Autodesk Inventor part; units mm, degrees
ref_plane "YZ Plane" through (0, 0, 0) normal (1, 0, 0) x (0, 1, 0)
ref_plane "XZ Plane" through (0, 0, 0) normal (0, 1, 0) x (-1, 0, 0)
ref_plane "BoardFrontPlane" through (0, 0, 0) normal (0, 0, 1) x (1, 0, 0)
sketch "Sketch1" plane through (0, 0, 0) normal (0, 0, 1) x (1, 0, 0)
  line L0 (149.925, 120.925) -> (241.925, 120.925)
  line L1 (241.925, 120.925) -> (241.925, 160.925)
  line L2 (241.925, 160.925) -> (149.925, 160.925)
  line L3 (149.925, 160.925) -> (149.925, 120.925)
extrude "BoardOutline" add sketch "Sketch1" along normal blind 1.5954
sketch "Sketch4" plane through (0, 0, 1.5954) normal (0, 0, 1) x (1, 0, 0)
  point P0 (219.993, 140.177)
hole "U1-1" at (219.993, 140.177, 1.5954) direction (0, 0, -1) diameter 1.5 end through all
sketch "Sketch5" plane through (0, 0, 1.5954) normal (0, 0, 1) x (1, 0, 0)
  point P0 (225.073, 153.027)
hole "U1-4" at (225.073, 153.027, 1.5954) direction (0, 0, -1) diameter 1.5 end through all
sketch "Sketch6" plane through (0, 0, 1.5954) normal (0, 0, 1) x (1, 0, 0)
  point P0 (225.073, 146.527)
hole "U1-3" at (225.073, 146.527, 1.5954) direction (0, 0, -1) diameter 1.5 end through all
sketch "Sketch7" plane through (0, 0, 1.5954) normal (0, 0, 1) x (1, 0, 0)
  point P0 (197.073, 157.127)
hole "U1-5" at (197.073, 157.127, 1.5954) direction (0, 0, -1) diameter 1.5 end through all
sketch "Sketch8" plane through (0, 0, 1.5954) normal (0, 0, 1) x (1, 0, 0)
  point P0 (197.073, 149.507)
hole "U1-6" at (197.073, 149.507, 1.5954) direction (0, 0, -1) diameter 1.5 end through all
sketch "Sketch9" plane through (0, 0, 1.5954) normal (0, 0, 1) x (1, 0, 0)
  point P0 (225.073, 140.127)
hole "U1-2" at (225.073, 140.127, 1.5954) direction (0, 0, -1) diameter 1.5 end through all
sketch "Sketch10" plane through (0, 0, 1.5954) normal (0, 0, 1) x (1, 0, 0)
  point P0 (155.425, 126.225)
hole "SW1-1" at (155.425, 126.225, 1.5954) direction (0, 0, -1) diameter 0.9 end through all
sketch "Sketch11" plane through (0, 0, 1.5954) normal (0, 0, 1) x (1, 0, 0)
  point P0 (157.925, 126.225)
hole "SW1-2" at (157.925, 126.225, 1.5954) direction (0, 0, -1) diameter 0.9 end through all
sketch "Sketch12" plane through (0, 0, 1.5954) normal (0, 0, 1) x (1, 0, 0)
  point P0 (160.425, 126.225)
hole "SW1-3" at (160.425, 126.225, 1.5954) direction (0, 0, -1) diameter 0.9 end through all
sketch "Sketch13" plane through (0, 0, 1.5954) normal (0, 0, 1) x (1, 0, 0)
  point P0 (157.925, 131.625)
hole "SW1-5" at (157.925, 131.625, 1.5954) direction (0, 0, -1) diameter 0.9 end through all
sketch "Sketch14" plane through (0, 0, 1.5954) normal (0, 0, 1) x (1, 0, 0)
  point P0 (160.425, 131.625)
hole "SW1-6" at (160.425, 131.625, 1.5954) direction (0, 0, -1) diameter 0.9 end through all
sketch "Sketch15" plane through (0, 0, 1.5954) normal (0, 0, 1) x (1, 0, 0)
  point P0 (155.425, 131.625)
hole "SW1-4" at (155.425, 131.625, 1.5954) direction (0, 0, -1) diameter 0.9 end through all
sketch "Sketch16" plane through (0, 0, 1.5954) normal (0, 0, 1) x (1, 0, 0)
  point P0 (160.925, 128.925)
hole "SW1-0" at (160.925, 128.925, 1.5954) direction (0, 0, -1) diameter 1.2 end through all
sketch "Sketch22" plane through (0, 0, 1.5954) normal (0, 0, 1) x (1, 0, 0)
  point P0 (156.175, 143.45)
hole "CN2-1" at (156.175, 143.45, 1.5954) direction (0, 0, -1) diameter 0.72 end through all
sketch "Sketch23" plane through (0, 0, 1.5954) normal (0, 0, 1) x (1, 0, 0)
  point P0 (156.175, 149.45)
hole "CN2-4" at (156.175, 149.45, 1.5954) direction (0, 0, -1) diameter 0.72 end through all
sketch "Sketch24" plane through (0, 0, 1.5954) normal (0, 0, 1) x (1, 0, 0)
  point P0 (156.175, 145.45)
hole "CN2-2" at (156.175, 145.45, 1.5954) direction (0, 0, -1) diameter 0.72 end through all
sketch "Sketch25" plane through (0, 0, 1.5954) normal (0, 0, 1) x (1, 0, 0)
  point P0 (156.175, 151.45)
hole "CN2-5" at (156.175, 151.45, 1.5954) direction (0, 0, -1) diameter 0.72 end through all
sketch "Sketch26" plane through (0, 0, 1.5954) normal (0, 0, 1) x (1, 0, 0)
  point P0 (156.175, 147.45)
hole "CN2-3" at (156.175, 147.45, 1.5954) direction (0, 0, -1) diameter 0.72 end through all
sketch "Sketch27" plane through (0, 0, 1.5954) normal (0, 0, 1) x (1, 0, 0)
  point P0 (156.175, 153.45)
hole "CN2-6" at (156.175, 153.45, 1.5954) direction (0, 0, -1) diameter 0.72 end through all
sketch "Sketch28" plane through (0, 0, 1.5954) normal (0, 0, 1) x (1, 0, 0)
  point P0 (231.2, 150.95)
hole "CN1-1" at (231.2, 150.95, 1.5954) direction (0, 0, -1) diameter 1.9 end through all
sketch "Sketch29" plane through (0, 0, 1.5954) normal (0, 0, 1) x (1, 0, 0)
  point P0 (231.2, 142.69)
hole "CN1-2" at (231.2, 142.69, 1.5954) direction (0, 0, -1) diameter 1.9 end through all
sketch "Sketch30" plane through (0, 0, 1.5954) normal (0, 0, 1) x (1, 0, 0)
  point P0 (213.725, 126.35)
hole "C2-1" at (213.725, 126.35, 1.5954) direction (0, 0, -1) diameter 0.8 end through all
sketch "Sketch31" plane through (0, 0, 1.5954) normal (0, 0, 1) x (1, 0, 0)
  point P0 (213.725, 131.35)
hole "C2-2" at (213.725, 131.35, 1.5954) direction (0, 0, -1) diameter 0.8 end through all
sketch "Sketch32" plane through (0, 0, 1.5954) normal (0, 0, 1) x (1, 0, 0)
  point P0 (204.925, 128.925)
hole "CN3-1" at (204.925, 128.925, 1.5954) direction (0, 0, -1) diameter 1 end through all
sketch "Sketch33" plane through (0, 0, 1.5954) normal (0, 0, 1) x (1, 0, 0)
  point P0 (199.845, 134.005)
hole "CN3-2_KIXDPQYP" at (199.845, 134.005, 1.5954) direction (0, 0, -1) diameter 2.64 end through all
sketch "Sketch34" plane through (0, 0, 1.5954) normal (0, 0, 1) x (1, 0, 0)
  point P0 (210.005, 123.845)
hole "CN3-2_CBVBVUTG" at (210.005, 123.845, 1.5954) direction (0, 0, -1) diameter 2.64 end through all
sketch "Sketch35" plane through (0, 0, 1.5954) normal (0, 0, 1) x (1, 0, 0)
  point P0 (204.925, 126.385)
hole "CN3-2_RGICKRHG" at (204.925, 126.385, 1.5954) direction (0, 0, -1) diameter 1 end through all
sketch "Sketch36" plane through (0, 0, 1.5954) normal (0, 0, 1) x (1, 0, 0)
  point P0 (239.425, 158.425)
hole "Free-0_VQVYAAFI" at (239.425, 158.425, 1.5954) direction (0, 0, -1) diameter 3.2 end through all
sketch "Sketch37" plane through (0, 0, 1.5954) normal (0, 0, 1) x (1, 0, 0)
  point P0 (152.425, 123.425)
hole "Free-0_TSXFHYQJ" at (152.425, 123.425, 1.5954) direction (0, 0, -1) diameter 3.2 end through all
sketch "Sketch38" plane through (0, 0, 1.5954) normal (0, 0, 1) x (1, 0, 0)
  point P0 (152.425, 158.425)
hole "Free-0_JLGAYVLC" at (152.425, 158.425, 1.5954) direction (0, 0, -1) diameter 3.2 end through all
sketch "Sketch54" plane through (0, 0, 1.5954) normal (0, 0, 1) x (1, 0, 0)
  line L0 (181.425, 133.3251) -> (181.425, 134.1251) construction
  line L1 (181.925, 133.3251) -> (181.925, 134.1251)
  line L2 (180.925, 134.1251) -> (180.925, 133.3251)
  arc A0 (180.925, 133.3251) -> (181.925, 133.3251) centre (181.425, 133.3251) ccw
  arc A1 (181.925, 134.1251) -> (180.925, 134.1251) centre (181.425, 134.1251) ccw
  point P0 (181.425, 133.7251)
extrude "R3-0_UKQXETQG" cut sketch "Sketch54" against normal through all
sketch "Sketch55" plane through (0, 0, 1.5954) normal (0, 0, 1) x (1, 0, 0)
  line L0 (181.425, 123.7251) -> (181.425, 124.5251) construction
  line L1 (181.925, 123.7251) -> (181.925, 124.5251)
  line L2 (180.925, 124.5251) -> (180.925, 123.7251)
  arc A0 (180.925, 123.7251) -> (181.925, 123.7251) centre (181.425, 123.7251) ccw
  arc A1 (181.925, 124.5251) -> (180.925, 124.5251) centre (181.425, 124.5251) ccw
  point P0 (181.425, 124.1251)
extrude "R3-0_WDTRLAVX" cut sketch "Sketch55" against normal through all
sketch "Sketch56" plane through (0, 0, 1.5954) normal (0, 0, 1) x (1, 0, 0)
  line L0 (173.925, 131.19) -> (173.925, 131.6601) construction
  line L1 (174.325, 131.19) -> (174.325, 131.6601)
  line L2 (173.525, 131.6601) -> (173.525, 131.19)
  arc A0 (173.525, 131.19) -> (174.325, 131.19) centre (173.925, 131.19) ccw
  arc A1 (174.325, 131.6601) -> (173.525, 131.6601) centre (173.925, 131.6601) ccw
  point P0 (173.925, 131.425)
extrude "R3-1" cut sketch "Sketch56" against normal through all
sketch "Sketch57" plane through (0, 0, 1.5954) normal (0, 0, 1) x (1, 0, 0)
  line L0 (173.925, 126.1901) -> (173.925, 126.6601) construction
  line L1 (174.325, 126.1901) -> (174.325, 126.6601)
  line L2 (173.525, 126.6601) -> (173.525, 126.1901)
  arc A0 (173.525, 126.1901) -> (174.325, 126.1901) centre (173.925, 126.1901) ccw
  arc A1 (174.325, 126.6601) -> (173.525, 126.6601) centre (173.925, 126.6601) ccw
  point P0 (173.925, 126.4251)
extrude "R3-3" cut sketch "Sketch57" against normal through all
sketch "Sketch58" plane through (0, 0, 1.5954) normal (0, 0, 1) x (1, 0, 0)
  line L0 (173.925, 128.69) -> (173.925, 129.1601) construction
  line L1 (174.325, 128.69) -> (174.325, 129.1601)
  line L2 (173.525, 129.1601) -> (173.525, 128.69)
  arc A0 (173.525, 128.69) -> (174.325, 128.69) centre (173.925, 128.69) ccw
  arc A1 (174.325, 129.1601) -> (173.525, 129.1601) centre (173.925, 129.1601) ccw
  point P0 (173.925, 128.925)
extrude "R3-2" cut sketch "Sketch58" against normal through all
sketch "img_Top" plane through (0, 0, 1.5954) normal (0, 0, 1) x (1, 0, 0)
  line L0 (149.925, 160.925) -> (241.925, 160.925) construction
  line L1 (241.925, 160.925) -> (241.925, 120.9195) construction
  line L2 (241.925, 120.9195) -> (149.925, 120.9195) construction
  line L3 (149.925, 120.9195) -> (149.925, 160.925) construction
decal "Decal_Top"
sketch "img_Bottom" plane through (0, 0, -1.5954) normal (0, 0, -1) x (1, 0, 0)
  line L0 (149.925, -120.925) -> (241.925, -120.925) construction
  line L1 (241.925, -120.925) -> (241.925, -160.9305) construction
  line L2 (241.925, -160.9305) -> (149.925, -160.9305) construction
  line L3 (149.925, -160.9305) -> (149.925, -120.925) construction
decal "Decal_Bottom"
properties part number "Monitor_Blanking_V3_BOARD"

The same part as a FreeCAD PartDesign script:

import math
import FreeCAD as App
import Part
import Sketcher

V = App.Vector
Q = App.Units.Quantity


def add_polygon(sketch, points):
    """Adds a closed chain of lines whose ends are joined by coincident constraints."""
    first, n = sketch.GeometryCount, len(points)
    for a, b in zip(points, points[1:] + points[:1]):
        sketch.addGeometry(Part.LineSegment(App.Vector(*a, 0), App.Vector(*b, 0)), False)
    for i in range(n):
        sketch.addConstraint(Sketcher.Constraint("Coincident", first + i, 2, first + (i + 1) % n, 1))

doc = App.newDocument("Part")
body = doc.addObject("PartDesign::Body", "Body")

# Sketch on XY plane
sketch1 = body.newObject("Sketcher::SketchObject", "Sketch")
sketch1.AttachmentSupport = (doc.getObject("XY_Plane"), [""])
sketch1.MapMode = "FlatFace"
add_polygon(sketch1, [(149.925, 160.925), (149.925, 120.925), (241.925, 120.925), (241.925, 160.925)])  # lines 0-3
sketch1.addConstraint(Sketcher.Constraint("Vertical", 0))
sketch1.addConstraint(Sketcher.Constraint("Horizontal", 1))
sketch1.addConstraint(Sketcher.Constraint("Vertical", 2))
sketch1.addConstraint(Sketcher.Constraint("Horizontal", 3))
sketch1.addConstraint(Sketcher.Constraint("DistanceX", 1, 1, 1, 2, Q("92 mm")))
sketch1.addConstraint(Sketcher.Constraint("DistanceY", 0, 2, 0, 1, Q("40 mm")))
sketch1.addConstraint(Sketcher.Constraint("DistanceX", -1, 1, 0, 2, Q("149.925 mm")))
sketch1.addConstraint(Sketcher.Constraint("DistanceY", -1, 1, 0, 2, Q("120.925 mm")))
pad1 = body.newObject("PartDesign::Pad", "Pad")
pad1.Profile = sketch1
pad1.Length = 1.5954

# Sketch on XY plane
sketch2 = body.newObject("Sketcher::SketchObject", "Sketch001")
sketch2.AttachmentSupport = (doc.getObject("XY_Plane"), [""])
sketch2.MapMode = "FlatFace"
sketch2.AttachmentOffset = App.Placement(V(0, 0, 1.5954), App.Rotation())
sketch2.addGeometry(Part.Circle(V(219.993, 140.177, 0), V(0, 0, 1), 0.75), False)
sketch2.addConstraint(Sketcher.Constraint("Diameter", 0, Q("1.5 mm")))
sketch2.addConstraint(Sketcher.Constraint("DistanceX", -1, 1, 0, 3, Q("219.993 mm")))
sketch2.addConstraint(Sketcher.Constraint("DistanceY", -1, 1, 0, 3, Q("140.177 mm")))
doc.recompute()
hole = body.newObject("PartDesign::Hole", "Hole")
hole.Profile = sketch2
hole.ThreadType = "None"
hole.Diameter = 1.5
hole.DepthType = "ThroughAll"

# Sketch on XY plane
sketch3 = body.newObject("Sketcher::SketchObject", "Sketch002")
sketch3.AttachmentSupport = (doc.getObject("XY_Plane"), [""])
sketch3.MapMode = "FlatFace"
sketch3.AttachmentOffset = App.Placement(V(0, 0, 1.5954), App.Rotation())
sketch3.addGeometry(Part.Circle(V(225.073, 153.027, 0), V(0, 0, 1), 0.75), False)
sketch3.addConstraint(Sketcher.Constraint("Diameter", 0, Q("1.5 mm")))
sketch3.addConstraint(Sketcher.Constraint("DistanceX", -1, 1, 0, 3, Q("225.073 mm")))
sketch3.addConstraint(Sketcher.Constraint("DistanceY", -1, 1, 0, 3, Q("153.027 mm")))
doc.recompute()
hole2 = body.newObject("PartDesign::Hole", "Hole001")
hole2.Profile = sketch3
hole2.ThreadType = "None"
hole2.Diameter = 1.5
hole2.DepthType = "ThroughAll"

# Sketch on XY plane
sketch4 = body.newObject("Sketcher::SketchObject", "Sketch003")
sketch4.AttachmentSupport = (doc.getObject("XY_Plane"), [""])
sketch4.MapMode = "FlatFace"
sketch4.AttachmentOffset = App.Placement(V(0, 0, 1.5954), App.Rotation())
sketch4.addGeometry(Part.Circle(V(225.073, 146.527, 0), V(0, 0, 1), 0.75), False)
sketch4.addConstraint(Sketcher.Constraint("Diameter", 0, Q("1.5 mm")))
sketch4.addConstraint(Sketcher.Constraint("DistanceX", -1, 1, 0, 3, Q("225.073 mm")))
sketch4.addConstraint(Sketcher.Constraint("DistanceY", -1, 1, 0, 3, Q("146.527 mm")))
doc.recompute()
hole3 = body.newObject("PartDesign::Hole", "Hole002")
hole3.Profile = sketch4
hole3.ThreadType = "None"
hole3.Diameter = 1.5
hole3.DepthType = "ThroughAll"

# Sketch on XY plane
sketch5 = body.newObject("Sketcher::SketchObject", "Sketch004")
sketch5.AttachmentSupport = (doc.getObject("XY_Plane"), [""])
sketch5.MapMode = "FlatFace"
sketch5.AttachmentOffset = App.Placement(V(0, 0, 1.5954), App.Rotation())
sketch5.addGeometry(Part.Circle(V(197.073, 157.127, 0), V(0, 0, 1), 0.75), False)
sketch5.addConstraint(Sketcher.Constraint("Diameter", 0, Q("1.5 mm")))
sketch5.addConstraint(Sketcher.Constraint("DistanceX", -1, 1, 0, 3, Q("197.073 mm")))
sketch5.addConstraint(Sketcher.Constraint("DistanceY", -1, 1, 0, 3, Q("157.127 mm")))
doc.recompute()
hole4 = body.newObject("PartDesign::Hole", "Hole003")
hole4.Profile = sketch5
hole4.ThreadType = "None"
hole4.Diameter = 1.5
hole4.DepthType = "ThroughAll"

# Sketch on XY plane
sketch6 = body.newObject("Sketcher::SketchObject", "Sketch005")
sketch6.AttachmentSupport = (doc.getObject("XY_Plane"), [""])
sketch6.MapMode = "FlatFace"
sketch6.AttachmentOffset = App.Placement(V(0, 0, 1.5954), App.Rotation())
sketch6.addGeometry(Part.Circle(V(197.073, 149.507, 0), V(0, 0, 1), 0.75), False)
sketch6.addConstraint(Sketcher.Constraint("Diameter", 0, Q("1.5 mm")))
sketch6.addConstraint(Sketcher.Constraint("DistanceX", -1, 1, 0, 3, Q("197.073 mm")))
sketch6.addConstraint(Sketcher.Constraint("DistanceY", -1, 1, 0, 3, Q("149.507 mm")))
doc.recompute()
hole5 = body.newObject("PartDesign::Hole", "Hole004")
hole5.Profile = sketch6
hole5.ThreadType = "None"
hole5.Diameter = 1.5
hole5.DepthType = "ThroughAll"

# Sketch on XY plane
sketch7 = body.newObject("Sketcher::SketchObject", "Sketch006")
sketch7.AttachmentSupport = (doc.getObject("XY_Plane"), [""])
sketch7.MapMode = "FlatFace"
sketch7.AttachmentOffset = App.Placement(V(0, 0, 1.5954), App.Rotation())
sketch7.addGeometry(Part.Circle(V(225.073, 140.127, 0), V(0, 0, 1), 0.75), False)
sketch7.addConstraint(Sketcher.Constraint("Diameter", 0, Q("1.5 mm")))
sketch7.addConstraint(Sketcher.Constraint("DistanceX", -1, 1, 0, 3, Q("225.073 mm")))
sketch7.addConstraint(Sketcher.Constraint("DistanceY", -1, 1, 0, 3, Q("140.127 mm")))
doc.recompute()
hole6 = body.newObject("PartDesign::Hole", "Hole005")
hole6.Profile = sketch7
hole6.ThreadType = "None"
hole6.Diameter = 1.5
hole6.DepthType = "ThroughAll"

# Sketch on XY plane
sketch8 = body.newObject("Sketcher::SketchObject", "Sketch007")
sketch8.AttachmentSupport = (doc.getObject("XY_Plane"), [""])
sketch8.MapMode = "FlatFace"
sketch8.AttachmentOffset = App.Placement(V(0, 0, 1.5954), App.Rotation())
sketch8.addGeometry(Part.Circle(V(155.425, 126.225, 0), V(0, 0, 1), 0.45), False)
sketch8.addConstraint(Sketcher.Constraint("Diameter", 0, Q("0.9 mm")))
sketch8.addConstraint(Sketcher.Constraint("DistanceX", -1, 1, 0, 3, Q("155.425 mm")))
sketch8.addConstraint(Sketcher.Constraint("DistanceY", -1, 1, 0, 3, Q("126.225 mm")))
doc.recompute()
hole7 = body.newObject("PartDesign::Hole", "Hole006")
hole7.Profile = sketch8
hole7.ThreadType = "None"
hole7.Diameter = 0.9
hole7.DepthType = "ThroughAll"

# Sketch on XY plane
sketch9 = body.newObject("Sketcher::SketchObject", "Sketch008")
sketch9.AttachmentSupport = (doc.getObject("XY_Plane"), [""])
sketch9.MapMode = "FlatFace"
sketch9.AttachmentOffset = App.Placement(V(0, 0, 1.5954), App.Rotation())
sketch9.addGeometry(Part.Circle(V(157.925, 126.225, 0), V(0, 0, 1), 0.45), False)
sketch9.addConstraint(Sketcher.Constraint("Diameter", 0, Q("0.9 mm")))
sketch9.addConstraint(Sketcher.Constraint("DistanceX", -1, 1, 0, 3, Q("157.925 mm")))
sketch9.addConstraint(Sketcher.Constraint("DistanceY", -1, 1, 0, 3, Q("126.225 mm")))
doc.recompute()
hole8 = body.newObject("PartDesign::Hole", "Hole007")
hole8.Profile = sketch9
hole8.ThreadType = "None"
hole8.Diameter = 0.9
hole8.DepthType = "ThroughAll"

# Sketch on XY plane
sketch10 = body.newObject("Sketcher::SketchObject", "Sketch009")
sketch10.AttachmentSupport = (doc.getObject("XY_Plane"), [""])
sketch10.MapMode = "FlatFace"
sketch10.AttachmentOffset = App.Placement(V(0, 0, 1.5954), App.Rotation())
sketch10.addGeometry(Part.Circle(V(160.425, 126.225, 0), V(0, 0, 1), 0.45), False)
sketch10.addConstraint(Sketcher.Constraint("Diameter", 0, Q("0.9 mm")))
sketch10.addConstraint(Sketcher.Constraint("DistanceX", -1, 1, 0, 3, Q("160.425 mm")))
sketch10.addConstraint(Sketcher.Constraint("DistanceY", -1, 1, 0, 3, Q("126.225 mm")))
doc.recompute()
hole9 = body.newObject("PartDesign::Hole", "Hole008")
hole9.Profile = sketch10
hole9.ThreadType = "None"
hole9.Diameter = 0.9
hole9.DepthType = "ThroughAll"

# Sketch on XY plane
sketch11 = body.newObject("Sketcher::SketchObject", "Sketch010")
sketch11.AttachmentSupport = (doc.getObject("XY_Plane"), [""])
sketch11.MapMode = "FlatFace"
sketch11.AttachmentOffset = App.Placement(V(0, 0, 1.5954), App.Rotation())
sketch11.addGeometry(Part.Circle(V(157.925, 131.625, 0), V(0, 0, 1), 0.45), False)
sketch11.addConstraint(Sketcher.Constraint("Diameter", 0, Q("0.9 mm")))
sketch11.addConstraint(Sketcher.Constraint("DistanceX", -1, 1, 0, 3, Q("157.925 mm")))
sketch11.addConstraint(Sketcher.Constraint("DistanceY", -1, 1, 0, 3, Q("131.625 mm")))
doc.recompute()
hole10 = body.newObject("PartDesign::Hole", "Hole009")
hole10.Profile = sketch11
hole10.ThreadType = "None"
hole10.Diameter = 0.9
hole10.DepthType = "ThroughAll"

# Sketch on XY plane
sketch12 = body.newObject("Sketcher::SketchObject", "Sketch011")
sketch12.AttachmentSupport = (doc.getObject("XY_Plane"), [""])
sketch12.MapMode = "FlatFace"
sketch12.AttachmentOffset = App.Placement(V(0, 0, 1.5954), App.Rotation())
sketch12.addGeometry(Part.Circle(V(160.425, 131.625, 0), V(0, 0, 1), 0.45), False)
sketch12.addConstraint(Sketcher.Constraint("Diameter", 0, Q("0.9 mm")))
sketch12.addConstraint(Sketcher.Constraint("DistanceX", -1, 1, 0, 3, Q("160.425 mm")))
sketch12.addConstraint(Sketcher.Constraint("DistanceY", -1, 1, 0, 3, Q("131.625 mm")))
doc.recompute()
hole11 = body.newObject("PartDesign::Hole", "Hole010")
hole11.Profile = sketch12
hole11.ThreadType = "None"
hole11.Diameter = 0.9
hole11.DepthType = "ThroughAll"

# Sketch on XY plane
sketch13 = body.newObject("Sketcher::SketchObject", "Sketch012")
sketch13.AttachmentSupport = (doc.getObject("XY_Plane"), [""])
sketch13.MapMode = "FlatFace"
sketch13.AttachmentOffset = App.Placement(V(0, 0, 1.5954), App.Rotation())
sketch13.addGeometry(Part.Circle(V(155.425, 131.625, 0), V(0, 0, 1), 0.45), False)
sketch13.addConstraint(Sketcher.Constraint("Diameter", 0, Q("0.9 mm")))
sketch13.addConstraint(Sketcher.Constraint("DistanceX", -1, 1, 0, 3, Q("155.425 mm")))
sketch13.addConstraint(Sketcher.Constraint("DistanceY", -1, 1, 0, 3, Q("131.625 mm")))
doc.recompute()
hole12 = body.newObject("PartDesign::Hole", "Hole011")
hole12.Profile = sketch13
hole12.ThreadType = "None"
hole12.Diameter = 0.9
hole12.DepthType = "ThroughAll"

# Sketch on XY plane
sketch14 = body.newObject("Sketcher::SketchObject", "Sketch013")
sketch14.AttachmentSupport = (doc.getObject("XY_Plane"), [""])
sketch14.MapMode = "FlatFace"
sketch14.AttachmentOffset = App.Placement(V(0, 0, 1.5954), App.Rotation())
sketch14.addGeometry(Part.Circle(V(160.925, 128.925, 0), V(0, 0, 1), 0.6), False)
sketch14.addConstraint(Sketcher.Constraint("Diameter", 0, Q("1.2 mm")))
sketch14.addConstraint(Sketcher.Constraint("DistanceX", -1, 1, 0, 3, Q("160.925 mm")))
sketch14.addConstraint(Sketcher.Constraint("DistanceY", -1, 1, 0, 3, Q("128.925 mm")))
doc.recompute()
hole13 = body.newObject("PartDesign::Hole", "Hole012")
hole13.Profile = sketch14
hole13.ThreadType = "None"
hole13.Diameter = 1.2
hole13.DepthType = "ThroughAll"

# Sketch on XY plane
sketch15 = body.newObject("Sketcher::SketchObject", "Sketch014")
sketch15.AttachmentSupport = (doc.getObject("XY_Plane"), [""])
sketch15.MapMode = "FlatFace"
sketch15.AttachmentOffset = App.Placement(V(0, 0, 1.5954), App.Rotation())
sketch15.addGeometry(Part.Circle(V(156.175, 143.45, 0), V(0, 0, 1), 0.36), False)
sketch15.addConstraint(Sketcher.Constraint("Diameter", 0, Q("0.72 mm")))
sketch15.addConstraint(Sketcher.Constraint("DistanceY", -1, 1, 0, 3, Q("143.45 mm")))
sketch15.addConstraint(Sketcher.Constraint("DistanceX", -1, 1, 0, 3, Q("156.175 mm")))
doc.recompute()
hole14 = body.newObject("PartDesign::Hole", "Hole013")
hole14.Profile = sketch15
hole14.ThreadType = "None"
hole14.Diameter = 0.72
hole14.DepthType = "ThroughAll"

# Sketch on XY plane
sketch16 = body.newObject("Sketcher::SketchObject", "Sketch015")
sketch16.AttachmentSupport = (doc.getObject("XY_Plane"), [""])
sketch16.MapMode = "FlatFace"
sketch16.AttachmentOffset = App.Placement(V(0, 0, 1.5954), App.Rotation())
sketch16.addGeometry(Part.Circle(V(156.175, 149.45, 0), V(0, 0, 1), 0.36), False)
sketch16.addConstraint(Sketcher.Constraint("Diameter", 0, Q("0.72 mm")))
sketch16.addConstraint(Sketcher.Constraint("DistanceY", -1, 1, 0, 3, Q("149.45 mm")))
sketch16.addConstraint(Sketcher.Constraint("DistanceX", -1, 1, 0, 3, Q("156.175 mm")))
doc.recompute()
hole15 = body.newObject("PartDesign::Hole", "Hole014")
hole15.Profile = sketch16
hole15.ThreadType = "None"
hole15.Diameter = 0.72
hole15.DepthType = "ThroughAll"

# Sketch on XY plane
sketch17 = body.newObject("Sketcher::SketchObject", "Sketch016")
sketch17.AttachmentSupport = (doc.getObject("XY_Plane"), [""])
sketch17.MapMode = "FlatFace"
sketch17.AttachmentOffset = App.Placement(V(0, 0, 1.5954), App.Rotation())
sketch17.addGeometry(Part.Circle(V(156.175, 145.45, 0), V(0, 0, 1), 0.36), False)
sketch17.addConstraint(Sketcher.Constraint("Diameter", 0, Q("0.72 mm")))
sketch17.addConstraint(Sketcher.Constraint("DistanceY", -1, 1, 0, 3, Q("145.45 mm")))
sketch17.addConstraint(Sketcher.Constraint("DistanceX", -1, 1, 0, 3, Q("156.175 mm")))
doc.recompute()
hole16 = body.newObject("PartDesign::Hole", "Hole015")
hole16.Profile = sketch17
hole16.ThreadType = "None"
hole16.Diameter = 0.72
hole16.DepthType = "ThroughAll"

# Sketch on XY plane
sketch18 = body.newObject("Sketcher::SketchObject", "Sketch017")
sketch18.AttachmentSupport = (doc.getObject("XY_Plane"), [""])
sketch18.MapMode = "FlatFace"
sketch18.AttachmentOffset = App.Placement(V(0, 0, 1.5954), App.Rotation())
sketch18.addGeometry(Part.Circle(V(156.175, 151.45, 0), V(0, 0, 1), 0.36), False)
sketch18.addConstraint(Sketcher.Constraint("Diameter", 0, Q("0.72 mm")))
sketch18.addConstraint(Sketcher.Constraint("DistanceY", -1, 1, 0, 3, Q("151.45 mm")))
sketch18.addConstraint(Sketcher.Constraint("DistanceX", -1, 1, 0, 3, Q("156.175 mm")))
doc.recompute()
hole17 = body.newObject("PartDesign::Hole", "Hole016")
hole17.Profile = sketch18
hole17.ThreadType = "None"
hole17.Diameter = 0.72
hole17.DepthType = "ThroughAll"

# Sketch on XY plane
sketch19 = body.newObject("Sketcher::SketchObject", "Sketch018")
sketch19.AttachmentSupport = (doc.getObject("XY_Plane"), [""])
sketch19.MapMode = "FlatFace"
sketch19.AttachmentOffset = App.Placement(V(0, 0, 1.5954), App.Rotation())
sketch19.addGeometry(Part.Circle(V(156.175, 147.45, 0), V(0, 0, 1), 0.36), False)
sketch19.addConstraint(Sketcher.Constraint("Diameter", 0, Q("0.72 mm")))
sketch19.addConstraint(Sketcher.Constraint("DistanceY", -1, 1, 0, 3, Q("147.45 mm")))
sketch19.addConstraint(Sketcher.Constraint("DistanceX", -1, 1, 0, 3, Q("156.175 mm")))
doc.recompute()
hole18 = body.newObject("PartDesign::Hole", "Hole017")
hole18.Profile = sketch19
hole18.ThreadType = "None"
hole18.Diameter = 0.72
hole18.DepthType = "ThroughAll"

# Sketch on XY plane
sketch20 = body.newObject("Sketcher::SketchObject", "Sketch019")
sketch20.AttachmentSupport = (doc.getObject("XY_Plane"), [""])
sketch20.MapMode = "FlatFace"
sketch20.AttachmentOffset = App.Placement(V(0, 0, 1.5954), App.Rotation())
sketch20.addGeometry(Part.Circle(V(156.175, 153.45, 0), V(0, 0, 1), 0.36), False)
sketch20.addConstraint(Sketcher.Constraint("Diameter", 0, Q("0.72 mm")))
sketch20.addConstraint(Sketcher.Constraint("DistanceY", -1, 1, 0, 3, Q("153.45 mm")))
sketch20.addConstraint(Sketcher.Constraint("DistanceX", -1, 1, 0, 3, Q("156.175 mm")))
doc.recompute()
hole19 = body.newObject("PartDesign::Hole", "Hole018")
hole19.Profile = sketch20
hole19.ThreadType = "None"
hole19.Diameter = 0.72
hole19.DepthType = "ThroughAll"

# Sketch on XY plane
sketch21 = body.newObject("Sketcher::SketchObject", "Sketch020")
sketch21.AttachmentSupport = (doc.getObject("XY_Plane"), [""])
sketch21.MapMode = "FlatFace"
sketch21.AttachmentOffset = App.Placement(V(0, 0, 1.5954), App.Rotation())
sketch21.addGeometry(Part.Circle(V(231.2, 150.95, 0), V(0, 0, 1), 0.95), False)
sketch21.addConstraint(Sketcher.Constraint("Diameter", 0, Q("1.9 mm")))
sketch21.addConstraint(Sketcher.Constraint("DistanceX", -1, 1, 0, 3, Q("231.2 mm")))
sketch21.addConstraint(Sketcher.Constraint("DistanceY", -1, 1, 0, 3, Q("150.95 mm")))
doc.recompute()
hole20 = body.newObject("PartDesign::Hole", "Hole019")
hole20.Profile = sketch21
hole20.ThreadType = "None"
hole20.Diameter = 1.9
hole20.DepthType = "ThroughAll"

# Sketch on XY plane
sketch22 = body.newObject("Sketcher::SketchObject", "Sketch021")
sketch22.AttachmentSupport = (doc.getObject("XY_Plane"), [""])
sketch22.MapMode = "FlatFace"
sketch22.AttachmentOffset = App.Placement(V(0, 0, 1.5954), App.Rotation())
sketch22.addGeometry(Part.Circle(V(231.2, 142.69, 0), V(0, 0, 1), 0.95), False)
sketch22.addConstraint(Sketcher.Constraint("Diameter", 0, Q("1.9 mm")))
sketch22.addConstraint(Sketcher.Constraint("DistanceX", -1, 1, 0, 3, Q("231.2 mm")))
sketch22.addConstraint(Sketcher.Constraint("DistanceY", -1, 1, 0, 3, Q("142.69 mm")))
doc.recompute()
hole21 = body.newObject("PartDesign::Hole", "Hole020")
hole21.Profile = sketch22
hole21.ThreadType = "None"
hole21.Diameter = 1.9
hole21.DepthType = "ThroughAll"

# Sketch on XY plane
sketch23 = body.newObject("Sketcher::SketchObject", "Sketch022")
sketch23.AttachmentSupport = (doc.getObject("XY_Plane"), [""])
sketch23.MapMode = "FlatFace"
sketch23.AttachmentOffset = App.Placement(V(0, 0, 1.5954), App.Rotation())
sketch23.addGeometry(Part.Circle(V(213.725, 126.35, 0), V(0, 0, 1), 0.4), False)
sketch23.addConstraint(Sketcher.Constraint("Diameter", 0, Q("0.8 mm")))
sketch23.addConstraint(Sketcher.Constraint("DistanceY", -1, 1, 0, 3, Q("126.35 mm")))
sketch23.addConstraint(Sketcher.Constraint("DistanceX", -1, 1, 0, 3, Q("213.725 mm")))
doc.recompute()
hole22 = body.newObject("PartDesign::Hole", "Hole021")
hole22.Profile = sketch23
hole22.ThreadType = "None"
hole22.Diameter = 0.8
hole22.DepthType = "ThroughAll"

# Sketch on XY plane
sketch24 = body.newObject("Sketcher::SketchObject", "Sketch023")
sketch24.AttachmentSupport = (doc.getObject("XY_Plane"), [""])
sketch24.MapMode = "FlatFace"
sketch24.AttachmentOffset = App.Placement(V(0, 0, 1.5954), App.Rotation())
sketch24.addGeometry(Part.Circle(V(213.725, 131.35, 0), V(0, 0, 1), 0.4), False)
sketch24.addConstraint(Sketcher.Constraint("Diameter", 0, Q("0.8 mm")))
sketch24.addConstraint(Sketcher.Constraint("DistanceY", -1, 1, 0, 3, Q("131.35 mm")))
sketch24.addConstraint(Sketcher.Constraint("DistanceX", -1, 1, 0, 3, Q("213.725 mm")))
doc.recompute()
hole23 = body.newObject("PartDesign::Hole", "Hole022")
hole23.Profile = sketch24
hole23.ThreadType = "None"
hole23.Diameter = 0.8
hole23.DepthType = "ThroughAll"

# Sketch on XY plane
sketch25 = body.newObject("Sketcher::SketchObject", "Sketch024")
sketch25.AttachmentSupport = (doc.getObject("XY_Plane"), [""])
sketch25.MapMode = "FlatFace"
sketch25.AttachmentOffset = App.Placement(V(0, 0, 1.5954), App.Rotation())
sketch25.addGeometry(Part.Circle(V(204.925, 128.925, 0), V(0, 0, 1), 0.5), False)
sketch25.addConstraint(Sketcher.Constraint("Diameter", 0, Q("1 mm")))
sketch25.addConstraint(Sketcher.Constraint("DistanceX", -1, 1, 0, 3, Q("204.925 mm")))
sketch25.addConstraint(Sketcher.Constraint("DistanceY", -1, 1, 0, 3, Q("128.925 mm")))
doc.recompute()
hole24 = body.newObject("PartDesign::Hole", "Hole023")
hole24.Profile = sketch25
hole24.ThreadType = "None"
hole24.Diameter = 1
hole24.DepthType = "ThroughAll"

# Sketch on XY plane
sketch26 = body.newObject("Sketcher::SketchObject", "Sketch025")
sketch26.AttachmentSupport = (doc.getObject("XY_Plane"), [""])
sketch26.MapMode = "FlatFace"
sketch26.AttachmentOffset = App.Placement(V(0, 0, 1.5954), App.Rotation())
sketch26.addGeometry(Part.Circle(V(199.845, 134.005, 0), V(0, 0, 1), 1.32), False)
sketch26.addConstraint(Sketcher.Constraint("Diameter", 0, Q("2.64 mm")))
sketch26.addConstraint(Sketcher.Constraint("DistanceX", -1, 1, 0, 3, Q("199.845 mm")))
sketch26.addConstraint(Sketcher.Constraint("DistanceY", -1, 1, 0, 3, Q("134.005 mm")))
doc.recompute()
hole25 = body.newObject("PartDesign::Hole", "Hole024")
hole25.Profile = sketch26
hole25.ThreadType = "None"
hole25.Diameter = 2.64
hole25.DepthType = "ThroughAll"

# Sketch on XY plane
sketch27 = body.newObject("Sketcher::SketchObject", "Sketch026")
sketch27.AttachmentSupport = (doc.getObject("XY_Plane"), [""])
sketch27.MapMode = "FlatFace"
sketch27.AttachmentOffset = App.Placement(V(0, 0, 1.5954), App.Rotation())
sketch27.addGeometry(Part.Circle(V(210.005, 123.845, 0), V(0, 0, 1), 1.32), False)
sketch27.addConstraint(Sketcher.Constraint("Diameter", 0, Q("2.64 mm")))
sketch27.addConstraint(Sketcher.Constraint("DistanceX", -1, 1, 0, 3, Q("210.005 mm")))
sketch27.addConstraint(Sketcher.Constraint("DistanceY", -1, 1, 0, 3, Q("123.845 mm")))
doc.recompute()
hole26 = body.newObject("PartDesign::Hole", "Hole025")
hole26.Profile = sketch27
hole26.ThreadType = "None"
hole26.Diameter = 2.64
hole26.DepthType = "ThroughAll"

# Sketch on XY plane
sketch28 = body.newObject("Sketcher::SketchObject", "Sketch027")
sketch28.AttachmentSupport = (doc.getObject("XY_Plane"), [""])
sketch28.MapMode = "FlatFace"
sketch28.AttachmentOffset = App.Placement(V(0, 0, 1.5954), App.Rotation())
sketch28.addGeometry(Part.Circle(V(204.925, 126.385, 0), V(0, 0, 1), 0.5), False)
sketch28.addConstraint(Sketcher.Constraint("Diameter", 0, Q("1 mm")))
sketch28.addConstraint(Sketcher.Constraint("DistanceX", -1, 1, 0, 3, Q("204.925 mm")))
sketch28.addConstraint(Sketcher.Constraint("DistanceY", -1, 1, 0, 3, Q("126.385 mm")))
doc.recompute()
hole27 = body.newObject("PartDesign::Hole", "Hole026")
hole27.Profile = sketch28
hole27.ThreadType = "None"
hole27.Diameter = 1
hole27.DepthType = "ThroughAll"

# Sketch on XY plane
sketch29 = body.newObject("Sketcher::SketchObject", "Sketch028")
sketch29.AttachmentSupport = (doc.getObject("XY_Plane"), [""])
sketch29.MapMode = "FlatFace"
sketch29.AttachmentOffset = App.Placement(V(0, 0, 1.5954), App.Rotation())
sketch29.addGeometry(Part.Circle(V(239.425, 158.425, 0), V(0, 0, 1), 1.6), False)
sketch29.addConstraint(Sketcher.Constraint("Diameter", 0, Q("3.2 mm")))
sketch29.addConstraint(Sketcher.Constraint("DistanceX", -1, 1, 0, 3, Q("239.425 mm")))
sketch29.addConstraint(Sketcher.Constraint("DistanceY", -1, 1, 0, 3, Q("158.425 mm")))
doc.recompute()
hole28 = body.newObject("PartDesign::Hole", "Hole027")
hole28.Profile = sketch29
hole28.ThreadType = "None"
hole28.Diameter = 3.2
hole28.DepthType = "ThroughAll"

# Sketch on XY plane
sketch30 = body.newObject("Sketcher::SketchObject", "Sketch029")
sketch30.AttachmentSupport = (doc.getObject("XY_Plane"), [""])
sketch30.MapMode = "FlatFace"
sketch30.AttachmentOffset = App.Placement(V(0, 0, 1.5954), App.Rotation())
sketch30.addGeometry(Part.Circle(V(152.425, 123.425, 0), V(0, 0, 1), 1.6), False)
sketch30.addConstraint(Sketcher.Constraint("Diameter", 0, Q("3.2 mm")))
sketch30.addConstraint(Sketcher.Constraint("DistanceX", -1, 1, 0, 3, Q("152.425 mm")))
sketch30.addConstraint(Sketcher.Constraint("DistanceY", -1, 1, 0, 3, Q("123.425 mm")))
doc.recompute()
hole29 = body.newObject("PartDesign::Hole", "Hole028")
hole29.Profile = sketch30
hole29.ThreadType = "None"
hole29.Diameter = 3.2
hole29.DepthType = "ThroughAll"

# Sketch on XY plane
sketch31 = body.newObject("Sketcher::SketchObject", "Sketch030")
sketch31.AttachmentSupport = (doc.getObject("XY_Plane"), [""])
sketch31.MapMode = "FlatFace"
sketch31.AttachmentOffset = App.Placement(V(0, 0, 1.5954), App.Rotation())
sketch31.addGeometry(Part.Circle(V(152.425, 158.425, 0), V(0, 0, 1), 1.6), False)
sketch31.addConstraint(Sketcher.Constraint("Diameter", 0, Q("3.2 mm")))
sketch31.addConstraint(Sketcher.Constraint("DistanceX", -1, 1, 0, 3, Q("152.425 mm")))
sketch31.addConstraint(Sketcher.Constraint("DistanceY", -1, 1, 0, 3, Q("158.425 mm")))
doc.recompute()
hole30 = body.newObject("PartDesign::Hole", "Hole029")
hole30.Profile = sketch31
hole30.ThreadType = "None"
hole30.Diameter = 3.2
hole30.DepthType = "ThroughAll"

# Sketch on XY plane
sketch32 = body.newObject("Sketcher::SketchObject", "Sketch031")
sketch32.AttachmentSupport = (doc.getObject("XY_Plane"), [""])
sketch32.MapMode = "FlatFace"
sketch32.AttachmentOffset = App.Placement(V(0, 0, 1.5954), App.Rotation())
sketch32.addGeometry(Part.ArcOfCircle(Part.Circle(V(181.425, 133.3251, 0), V(0, 0, 1), 0.5), math.radians(180), math.radians(360)), False)
sketch32.addGeometry(Part.LineSegment(V(181.925, 133.3251, 0), V(181.925, 134.1251, 0)), False)
sketch32.addGeometry(Part.ArcOfCircle(Part.Circle(V(181.425, 134.1251, 0), V(0, 0, 1), 0.5), math.radians(0), math.radians(180)), False)
sketch32.addGeometry(Part.LineSegment(V(180.925, 134.1251, 0), V(180.925, 133.3251, 0)), False)
sketch32.addConstraint(Sketcher.Constraint("Tangent", 0, 2, 1, 1))
sketch32.addConstraint(Sketcher.Constraint("Tangent", 1, 2, 2, 1))
sketch32.addConstraint(Sketcher.Constraint("Tangent", 2, 2, 3, 1))
sketch32.addConstraint(Sketcher.Constraint("Tangent", 3, 2, 0, 1))
sketch32.addConstraint(Sketcher.Constraint("Vertical", 1))
sketch32.addConstraint(Sketcher.Constraint("Vertical", 3))
sketch32.addConstraint(Sketcher.Constraint("Radius", 0, Q("0.5 mm")))
sketch32.addConstraint(Sketcher.Constraint("DistanceY", 1, 1, 1, 2, Q("0.8 mm")))
sketch32.addConstraint(Sketcher.Constraint("DistanceX", -1, 1, 0, 3, Q("181.425 mm")))
sketch32.addConstraint(Sketcher.Constraint("DistanceY", -1, 1, 0, 3, Q("133.325 mm")))
pocket1 = body.newObject("PartDesign::Pocket", "Pocket")
pocket1.Profile = sketch32
pocket1.Type = "ThroughAll"

# Sketch on XY plane
sketch33 = body.newObject("Sketcher::SketchObject", "Sketch032")
sketch33.AttachmentSupport = (doc.getObject("XY_Plane"), [""])
sketch33.MapMode = "FlatFace"
sketch33.AttachmentOffset = App.Placement(V(0, 0, 1.5954), App.Rotation())
sketch33.addGeometry(Part.ArcOfCircle(Part.Circle(V(181.425, 123.7251, 0), V(0, 0, 1), 0.5), math.radians(180), math.radians(360)), False)
sketch33.addGeometry(Part.LineSegment(V(181.925, 123.7251, 0), V(181.925, 124.5251, 0)), False)
sketch33.addGeometry(Part.ArcOfCircle(Part.Circle(V(181.425, 124.5251, 0), V(0, 0, 1), 0.5), math.radians(0), math.radians(180)), False)
sketch33.addGeometry(Part.LineSegment(V(180.925, 124.5251, 0), V(180.925, 123.7251, 0)), False)
sketch33.addConstraint(Sketcher.Constraint("Tangent", 0, 2, 1, 1))
sketch33.addConstraint(Sketcher.Constraint("Tangent", 1, 2, 2, 1))
sketch33.addConstraint(Sketcher.Constraint("Tangent", 2, 2, 3, 1))
sketch33.addConstraint(Sketcher.Constraint("Tangent", 3, 2, 0, 1))
sketch33.addConstraint(Sketcher.Constraint("Vertical", 1))
sketch33.addConstraint(Sketcher.Constraint("Vertical", 3))
sketch33.addConstraint(Sketcher.Constraint("Radius", 0, Q("0.5 mm")))
sketch33.addConstraint(Sketcher.Constraint("DistanceY", 1, 1, 1, 2, Q("0.8 mm")))
sketch33.addConstraint(Sketcher.Constraint("DistanceX", -1, 1, 0, 3, Q("181.425 mm")))
sketch33.addConstraint(Sketcher.Constraint("DistanceY", -1, 1, 0, 3, Q("123.725 mm")))
pocket2 = body.newObject("PartDesign::Pocket", "Pocket001")
pocket2.Profile = sketch33
pocket2.Type = "ThroughAll"

# Sketch on XY plane
sketch34 = body.newObject("Sketcher::SketchObject", "Sketch033")
sketch34.AttachmentSupport = (doc.getObject("XY_Plane"), [""])
sketch34.MapMode = "FlatFace"
sketch34.AttachmentOffset = App.Placement(V(0, 0, 1.5954), App.Rotation())
sketch34.addGeometry(Part.ArcOfCircle(Part.Circle(V(173.925, 131.19, 0), V(0, 0, 1), 0.4), math.radians(180), math.radians(360)), False)
sketch34.addGeometry(Part.LineSegment(V(174.325, 131.19, 0), V(174.325, 131.6601, 0)), False)
sketch34.addGeometry(Part.ArcOfCircle(Part.Circle(V(173.925, 131.6601, 0), V(0, 0, 1), 0.4), math.radians(0), math.radians(180)), False)
sketch34.addGeometry(Part.LineSegment(V(173.525, 131.6601, 0), V(173.525, 131.19, 0)), False)
sketch34.addConstraint(Sketcher.Constraint("Tangent", 0, 2, 1, 1))
sketch34.addConstraint(Sketcher.Constraint("Tangent", 1, 2, 2, 1))
sketch34.addConstraint(Sketcher.Constraint("Tangent", 2, 2, 3, 1))
sketch34.addConstraint(Sketcher.Constraint("Tangent", 3, 2, 0, 1))
sketch34.addConstraint(Sketcher.Constraint("Vertical", 1))
sketch34.addConstraint(Sketcher.Constraint("Vertical", 3))
sketch34.addConstraint(Sketcher.Constraint("Radius", 0, Q("0.4 mm")))
sketch34.addConstraint(Sketcher.Constraint("DistanceY", 1, 1, 1, 2, Q("0.47 mm")))
sketch34.addConstraint(Sketcher.Constraint("DistanceY", -1, 1, 0, 3, Q("131.19 mm")))
sketch34.addConstraint(Sketcher.Constraint("DistanceX", -1, 1, 0, 3, Q("173.925 mm")))
pocket3 = body.newObject("PartDesign::Pocket", "Pocket002")
pocket3.Profile = sketch34
pocket3.Type = "ThroughAll"

# Sketch on XY plane
sketch35 = body.newObject("Sketcher::SketchObject", "Sketch034")
sketch35.AttachmentSupport = (doc.getObject("XY_Plane"), [""])
sketch35.MapMode = "FlatFace"
sketch35.AttachmentOffset = App.Placement(V(0, 0, 1.5954), App.Rotation())
sketch35.addGeometry(Part.ArcOfCircle(Part.Circle(V(173.925, 126.1901, 0), V(0, 0, 1), 0.4), math.radians(180), math.radians(360)), False)
sketch35.addGeometry(Part.LineSegment(V(174.325, 126.1901, 0), V(174.325, 126.6601, 0)), False)
sketch35.addGeometry(Part.ArcOfCircle(Part.Circle(V(173.925, 126.6601, 0), V(0, 0, 1), 0.4), math.radians(0), math.radians(180)), False)
sketch35.addGeometry(Part.LineSegment(V(173.525, 126.6601, 0), V(173.525, 126.1901, 0)), False)
sketch35.addConstraint(Sketcher.Constraint("Tangent", 0, 2, 1, 1))
sketch35.addConstraint(Sketcher.Constraint("Tangent", 1, 2, 2, 1))
sketch35.addConstraint(Sketcher.Constraint("Tangent", 2, 2, 3, 1))
sketch35.addConstraint(Sketcher.Constraint("Tangent", 3, 2, 0, 1))
sketch35.addConstraint(Sketcher.Constraint("Vertical", 1))
sketch35.addConstraint(Sketcher.Constraint("Vertical", 3))
sketch35.addConstraint(Sketcher.Constraint("Radius", 0, Q("0.4 mm")))
sketch35.addConstraint(Sketcher.Constraint("DistanceY", 1, 1, 1, 2, Q("0.47 mm")))
sketch35.addConstraint(Sketcher.Constraint("DistanceY", -1, 1, 0, 3, Q("126.19 mm")))
sketch35.addConstraint(Sketcher.Constraint("DistanceX", -1, 1, 0, 3, Q("173.925 mm")))
pocket4 = body.newObject("PartDesign::Pocket", "Pocket003")
pocket4.Profile = sketch35
pocket4.Type = "ThroughAll"

# Sketch on XY plane
sketch36 = body.newObject("Sketcher::SketchObject", "Sketch035")
sketch36.AttachmentSupport = (doc.getObject("XY_Plane"), [""])
sketch36.MapMode = "FlatFace"
sketch36.AttachmentOffset = App.Placement(V(0, 0, 1.5954), App.Rotation())
sketch36.addGeometry(Part.ArcOfCircle(Part.Circle(V(173.925, 128.69, 0), V(0, 0, 1), 0.4), math.radians(180), math.radians(360)), False)
sketch36.addGeometry(Part.LineSegment(V(174.325, 128.69, 0), V(174.325, 129.1601, 0)), False)
sketch36.addGeometry(Part.ArcOfCircle(Part.Circle(V(173.925, 129.1601, 0), V(0, 0, 1), 0.4), math.radians(0), math.radians(180)), False)
sketch36.addGeometry(Part.LineSegment(V(173.525, 129.1601, 0), V(173.525, 128.69, 0)), False)
sketch36.addConstraint(Sketcher.Constraint("Tangent", 0, 2, 1, 1))
sketch36.addConstraint(Sketcher.Constraint("Tangent", 1, 2, 2, 1))
sketch36.addConstraint(Sketcher.Constraint("Tangent", 2, 2, 3, 1))
sketch36.addConstraint(Sketcher.Constraint("Tangent", 3, 2, 0, 1))
sketch36.addConstraint(Sketcher.Constraint("Vertical", 1))
sketch36.addConstraint(Sketcher.Constraint("Vertical", 3))
sketch36.addConstraint(Sketcher.Constraint("Radius", 0, Q("0.4 mm")))
sketch36.addConstraint(Sketcher.Constraint("DistanceY", 1, 1, 1, 2, Q("0.47 mm")))
sketch36.addConstraint(Sketcher.Constraint("DistanceY", -1, 1, 0, 3, Q("128.69 mm")))
sketch36.addConstraint(Sketcher.Constraint("DistanceX", -1, 1, 0, 3, Q("173.925 mm")))
pocket5 = body.newObject("PartDesign::Pocket", "Pocket004")
pocket5.Profile = sketch36
pocket5.Type = "ThroughAll"

doc.recompute()
